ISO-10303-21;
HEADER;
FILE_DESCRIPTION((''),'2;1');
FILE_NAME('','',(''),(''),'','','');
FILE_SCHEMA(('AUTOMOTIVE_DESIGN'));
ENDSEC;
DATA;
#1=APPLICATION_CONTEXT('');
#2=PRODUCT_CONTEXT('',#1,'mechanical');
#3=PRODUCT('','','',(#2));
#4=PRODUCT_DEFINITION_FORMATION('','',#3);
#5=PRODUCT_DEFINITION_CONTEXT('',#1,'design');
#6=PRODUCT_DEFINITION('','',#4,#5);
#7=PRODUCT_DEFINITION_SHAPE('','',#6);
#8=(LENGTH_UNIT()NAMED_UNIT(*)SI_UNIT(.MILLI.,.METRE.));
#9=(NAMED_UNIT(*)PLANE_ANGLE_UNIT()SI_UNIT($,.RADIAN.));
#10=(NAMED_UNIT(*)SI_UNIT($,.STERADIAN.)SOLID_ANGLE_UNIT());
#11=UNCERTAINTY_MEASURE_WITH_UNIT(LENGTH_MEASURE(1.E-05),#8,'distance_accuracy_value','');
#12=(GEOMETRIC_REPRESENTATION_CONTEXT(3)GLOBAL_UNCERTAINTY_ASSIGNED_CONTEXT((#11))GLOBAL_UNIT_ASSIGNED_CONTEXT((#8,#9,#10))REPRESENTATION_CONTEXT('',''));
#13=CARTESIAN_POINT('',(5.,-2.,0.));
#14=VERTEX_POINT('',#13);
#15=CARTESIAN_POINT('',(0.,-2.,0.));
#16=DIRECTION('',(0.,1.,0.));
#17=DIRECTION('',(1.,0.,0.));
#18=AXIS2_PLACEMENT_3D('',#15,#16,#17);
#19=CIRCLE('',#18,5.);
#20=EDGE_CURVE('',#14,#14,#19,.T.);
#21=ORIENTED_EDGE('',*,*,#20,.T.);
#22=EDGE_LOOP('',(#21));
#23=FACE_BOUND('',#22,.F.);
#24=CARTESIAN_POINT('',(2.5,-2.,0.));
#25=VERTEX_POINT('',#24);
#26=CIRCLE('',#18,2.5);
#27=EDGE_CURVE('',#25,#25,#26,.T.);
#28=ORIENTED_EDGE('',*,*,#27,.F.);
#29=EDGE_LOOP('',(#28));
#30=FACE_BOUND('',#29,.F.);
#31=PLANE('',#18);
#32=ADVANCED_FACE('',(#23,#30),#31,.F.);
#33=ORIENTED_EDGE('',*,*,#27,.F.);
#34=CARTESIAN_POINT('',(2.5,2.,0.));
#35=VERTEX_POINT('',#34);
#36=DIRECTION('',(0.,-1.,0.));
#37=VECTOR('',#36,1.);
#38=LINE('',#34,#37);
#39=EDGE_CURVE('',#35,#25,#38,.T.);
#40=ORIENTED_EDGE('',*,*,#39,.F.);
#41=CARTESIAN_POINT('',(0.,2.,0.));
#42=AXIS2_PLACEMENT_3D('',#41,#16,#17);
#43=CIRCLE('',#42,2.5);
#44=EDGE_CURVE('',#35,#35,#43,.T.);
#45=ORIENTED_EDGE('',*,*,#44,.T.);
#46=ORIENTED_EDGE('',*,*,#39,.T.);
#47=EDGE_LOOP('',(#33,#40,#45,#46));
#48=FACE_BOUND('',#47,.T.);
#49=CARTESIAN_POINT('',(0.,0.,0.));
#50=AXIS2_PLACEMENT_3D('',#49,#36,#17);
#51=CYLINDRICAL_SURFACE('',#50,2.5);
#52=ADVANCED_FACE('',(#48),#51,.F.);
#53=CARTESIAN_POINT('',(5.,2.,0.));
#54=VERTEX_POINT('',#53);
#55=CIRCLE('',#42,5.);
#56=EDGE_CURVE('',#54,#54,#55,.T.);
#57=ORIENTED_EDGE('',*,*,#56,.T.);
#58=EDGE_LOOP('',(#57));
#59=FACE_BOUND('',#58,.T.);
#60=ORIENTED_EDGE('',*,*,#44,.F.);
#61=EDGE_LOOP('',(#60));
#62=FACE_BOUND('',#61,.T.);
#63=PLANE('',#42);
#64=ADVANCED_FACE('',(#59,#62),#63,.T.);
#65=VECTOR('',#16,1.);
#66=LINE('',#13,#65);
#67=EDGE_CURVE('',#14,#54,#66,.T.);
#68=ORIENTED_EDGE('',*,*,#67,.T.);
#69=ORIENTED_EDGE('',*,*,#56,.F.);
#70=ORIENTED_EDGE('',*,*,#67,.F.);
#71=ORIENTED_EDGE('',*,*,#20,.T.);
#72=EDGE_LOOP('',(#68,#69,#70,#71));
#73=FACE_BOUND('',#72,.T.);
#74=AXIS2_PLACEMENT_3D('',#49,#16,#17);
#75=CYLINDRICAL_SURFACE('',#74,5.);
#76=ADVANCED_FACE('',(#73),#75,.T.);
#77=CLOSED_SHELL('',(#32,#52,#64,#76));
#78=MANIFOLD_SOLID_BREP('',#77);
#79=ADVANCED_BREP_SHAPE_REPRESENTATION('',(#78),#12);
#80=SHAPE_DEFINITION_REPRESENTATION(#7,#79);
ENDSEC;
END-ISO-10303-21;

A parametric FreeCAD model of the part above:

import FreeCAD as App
import Part
import Sketcher

doc = App.newDocument("Part")
body = doc.addObject("PartDesign::Body", "Body")

sketch1 = body.newObject("Sketcher::SketchObject", "Sketch")
sketch1.AttachmentSupport = (doc.getObject("XZ_Plane"), [""])
sketch1.MapMode = "FlatFace"
sketch1.addGeometry(Part.Circle(App.Vector(0, 0, 0), App.Vector(0, 0, 1), 5), False)
sketch1.addGeometry(Part.Circle(App.Vector(0, 0, 0), App.Vector(0, 0, 1), 2.5), False)
sketch1.addConstraint(Sketcher.Constraint("Coincident", 0, 3, -1, 1))
sketch1.addConstraint(Sketcher.Constraint("Coincident", 1, 3, -1, 1))
sketch1.addConstraint(Sketcher.Constraint("Diameter", 0, 10.0))
sketch1.addConstraint(Sketcher.Constraint("Diameter", 1, 5.0))
pad1 = body.newObject("PartDesign::Pad", "Pad")
pad1.Profile = sketch1
pad1.Length = 4
pad1.Midplane = True

doc.recompute()
